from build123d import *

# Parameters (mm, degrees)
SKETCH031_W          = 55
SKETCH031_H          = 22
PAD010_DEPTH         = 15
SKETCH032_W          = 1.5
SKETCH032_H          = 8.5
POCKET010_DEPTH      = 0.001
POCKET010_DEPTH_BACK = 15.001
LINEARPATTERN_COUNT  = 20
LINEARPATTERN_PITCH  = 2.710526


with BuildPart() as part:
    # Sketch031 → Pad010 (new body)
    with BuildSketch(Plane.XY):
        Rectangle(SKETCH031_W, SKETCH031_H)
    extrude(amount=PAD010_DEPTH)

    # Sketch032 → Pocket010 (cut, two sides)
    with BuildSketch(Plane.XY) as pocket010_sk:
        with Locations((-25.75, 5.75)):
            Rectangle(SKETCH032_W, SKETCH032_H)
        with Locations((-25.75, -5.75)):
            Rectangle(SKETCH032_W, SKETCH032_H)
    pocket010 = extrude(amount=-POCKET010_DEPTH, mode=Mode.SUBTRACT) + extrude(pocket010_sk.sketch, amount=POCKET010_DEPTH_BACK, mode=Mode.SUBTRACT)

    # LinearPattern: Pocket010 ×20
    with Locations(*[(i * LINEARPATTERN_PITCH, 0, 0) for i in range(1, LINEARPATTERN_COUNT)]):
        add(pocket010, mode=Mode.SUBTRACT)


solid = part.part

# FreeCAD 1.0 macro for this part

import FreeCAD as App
import Part
import Sketcher
from FreeCAD import Vector
Q = App.Units.Quantity


def add_polygon(sketch, points):
    """Adds a closed chain of lines whose ends are joined by coincident constraints."""
    first, n = sketch.GeometryCount, len(points)
    for a, b in zip(points, points[1:] + points[:1]):
        sketch.addGeometry(Part.LineSegment(App.Vector(*a, 0), App.Vector(*b, 0)), False)
    for i in range(n):
        sketch.addConstraint(Sketcher.Constraint("Coincident", first + i, 2, first + (i + 1) % n, 1))

doc = App.newDocument("Part")
body = doc.addObject("PartDesign::Body", "Body")

# Sketch on XY plane
sketch1 = body.newObject("Sketcher::SketchObject", "Sketch")
sketch1.AttachmentSupport = (doc.getObject("XY_Plane"), [""])
sketch1.MapMode = "FlatFace"
add_polygon(sketch1, [(-28, 11), (-28, -11), (28, -11), (28, 11)])  # lines 0-3
sketch1.addConstraint([
    Sketcher.Constraint("Vertical", 0),
    Sketcher.Constraint("Horizontal", 1),
    Sketcher.Constraint("Vertical", 2),
    Sketcher.Constraint("Horizontal", 3),
    Sketcher.Constraint("Symmetric", 0, 2, 2, 2, -1, 1),
    Sketcher.Constraint("DistanceX", 1, 1, 1, 2, Q("55 mm")),
    Sketcher.Constraint("DistanceY", 0, 2, 0, 1, Q("22 mm")),
])
pad1 = body.newObject("PartDesign::Pad", "Pad")
pad1.Profile = sketch1
pad1.Length = 15

# Sketch on XY plane
sketch2 = body.newObject("Sketcher::SketchObject", "Sketch001")
sketch2.AttachmentSupport = (doc.getObject("XY_Plane"), [""])
sketch2.MapMode = "FlatFace"
add_polygon(sketch2, [(-26.5, 10), (-26.5, 1.5), (-25, 1.5), (-25, 10)])  # lines 0-3
add_polygon(sketch2, [(-26.5, -1.5), (-26.5, -10), (-25, -10), (-25, -1.5)])  # lines 4-7
sketch2.addConstraint([
    Sketcher.Constraint("Vertical", 0),
    Sketcher.Constraint("Horizontal", 1),
    Sketcher.Constraint("Vertical", 2),
    Sketcher.Constraint("Horizontal", 3),
    Sketcher.Constraint("Vertical", 4),
    Sketcher.Constraint("Horizontal", 5),
    Sketcher.Constraint("Vertical", 6),
    Sketcher.Constraint("Horizontal", 7),
    Sketcher.Constraint("Symmetric", 3, 2, 4, 2, -1),
    Sketcher.Constraint("Symmetric", 1, 2, 6, 2, -1),
    Sketcher.Constraint("DistanceX", 1, 1, 1, 2, Q("1.5 mm")),
    Sketcher.Constraint("DistanceY", 0, 2, 0, 1, Q("8.5 mm")),
    Sketcher.Constraint("DistanceX", 1, 2, -1, 1, Q("25 mm")),
    Sketcher.Constraint("DistanceY", -1, 1, 2, 2, Q("10 mm")),
])
pocket1 = body.newObject("PartDesign::Pocket", "Pocket")
pocket1.Profile = sketch2
pocket1.Type = "ThroughAll"
pocket1.Midplane = True
doc.recompute()

linearpattern = body.newObject("PartDesign::LinearPattern", "LinearPattern")
linearpattern.Originals = [pocket1]
linearpattern.Direction = (doc.getObject("X_Axis"), [""])
linearpattern.Mode = "offset"
linearpattern.Offset = 2.710526
linearpattern.Occurrences = 20
body.Tip = linearpattern

doc.recompute()
